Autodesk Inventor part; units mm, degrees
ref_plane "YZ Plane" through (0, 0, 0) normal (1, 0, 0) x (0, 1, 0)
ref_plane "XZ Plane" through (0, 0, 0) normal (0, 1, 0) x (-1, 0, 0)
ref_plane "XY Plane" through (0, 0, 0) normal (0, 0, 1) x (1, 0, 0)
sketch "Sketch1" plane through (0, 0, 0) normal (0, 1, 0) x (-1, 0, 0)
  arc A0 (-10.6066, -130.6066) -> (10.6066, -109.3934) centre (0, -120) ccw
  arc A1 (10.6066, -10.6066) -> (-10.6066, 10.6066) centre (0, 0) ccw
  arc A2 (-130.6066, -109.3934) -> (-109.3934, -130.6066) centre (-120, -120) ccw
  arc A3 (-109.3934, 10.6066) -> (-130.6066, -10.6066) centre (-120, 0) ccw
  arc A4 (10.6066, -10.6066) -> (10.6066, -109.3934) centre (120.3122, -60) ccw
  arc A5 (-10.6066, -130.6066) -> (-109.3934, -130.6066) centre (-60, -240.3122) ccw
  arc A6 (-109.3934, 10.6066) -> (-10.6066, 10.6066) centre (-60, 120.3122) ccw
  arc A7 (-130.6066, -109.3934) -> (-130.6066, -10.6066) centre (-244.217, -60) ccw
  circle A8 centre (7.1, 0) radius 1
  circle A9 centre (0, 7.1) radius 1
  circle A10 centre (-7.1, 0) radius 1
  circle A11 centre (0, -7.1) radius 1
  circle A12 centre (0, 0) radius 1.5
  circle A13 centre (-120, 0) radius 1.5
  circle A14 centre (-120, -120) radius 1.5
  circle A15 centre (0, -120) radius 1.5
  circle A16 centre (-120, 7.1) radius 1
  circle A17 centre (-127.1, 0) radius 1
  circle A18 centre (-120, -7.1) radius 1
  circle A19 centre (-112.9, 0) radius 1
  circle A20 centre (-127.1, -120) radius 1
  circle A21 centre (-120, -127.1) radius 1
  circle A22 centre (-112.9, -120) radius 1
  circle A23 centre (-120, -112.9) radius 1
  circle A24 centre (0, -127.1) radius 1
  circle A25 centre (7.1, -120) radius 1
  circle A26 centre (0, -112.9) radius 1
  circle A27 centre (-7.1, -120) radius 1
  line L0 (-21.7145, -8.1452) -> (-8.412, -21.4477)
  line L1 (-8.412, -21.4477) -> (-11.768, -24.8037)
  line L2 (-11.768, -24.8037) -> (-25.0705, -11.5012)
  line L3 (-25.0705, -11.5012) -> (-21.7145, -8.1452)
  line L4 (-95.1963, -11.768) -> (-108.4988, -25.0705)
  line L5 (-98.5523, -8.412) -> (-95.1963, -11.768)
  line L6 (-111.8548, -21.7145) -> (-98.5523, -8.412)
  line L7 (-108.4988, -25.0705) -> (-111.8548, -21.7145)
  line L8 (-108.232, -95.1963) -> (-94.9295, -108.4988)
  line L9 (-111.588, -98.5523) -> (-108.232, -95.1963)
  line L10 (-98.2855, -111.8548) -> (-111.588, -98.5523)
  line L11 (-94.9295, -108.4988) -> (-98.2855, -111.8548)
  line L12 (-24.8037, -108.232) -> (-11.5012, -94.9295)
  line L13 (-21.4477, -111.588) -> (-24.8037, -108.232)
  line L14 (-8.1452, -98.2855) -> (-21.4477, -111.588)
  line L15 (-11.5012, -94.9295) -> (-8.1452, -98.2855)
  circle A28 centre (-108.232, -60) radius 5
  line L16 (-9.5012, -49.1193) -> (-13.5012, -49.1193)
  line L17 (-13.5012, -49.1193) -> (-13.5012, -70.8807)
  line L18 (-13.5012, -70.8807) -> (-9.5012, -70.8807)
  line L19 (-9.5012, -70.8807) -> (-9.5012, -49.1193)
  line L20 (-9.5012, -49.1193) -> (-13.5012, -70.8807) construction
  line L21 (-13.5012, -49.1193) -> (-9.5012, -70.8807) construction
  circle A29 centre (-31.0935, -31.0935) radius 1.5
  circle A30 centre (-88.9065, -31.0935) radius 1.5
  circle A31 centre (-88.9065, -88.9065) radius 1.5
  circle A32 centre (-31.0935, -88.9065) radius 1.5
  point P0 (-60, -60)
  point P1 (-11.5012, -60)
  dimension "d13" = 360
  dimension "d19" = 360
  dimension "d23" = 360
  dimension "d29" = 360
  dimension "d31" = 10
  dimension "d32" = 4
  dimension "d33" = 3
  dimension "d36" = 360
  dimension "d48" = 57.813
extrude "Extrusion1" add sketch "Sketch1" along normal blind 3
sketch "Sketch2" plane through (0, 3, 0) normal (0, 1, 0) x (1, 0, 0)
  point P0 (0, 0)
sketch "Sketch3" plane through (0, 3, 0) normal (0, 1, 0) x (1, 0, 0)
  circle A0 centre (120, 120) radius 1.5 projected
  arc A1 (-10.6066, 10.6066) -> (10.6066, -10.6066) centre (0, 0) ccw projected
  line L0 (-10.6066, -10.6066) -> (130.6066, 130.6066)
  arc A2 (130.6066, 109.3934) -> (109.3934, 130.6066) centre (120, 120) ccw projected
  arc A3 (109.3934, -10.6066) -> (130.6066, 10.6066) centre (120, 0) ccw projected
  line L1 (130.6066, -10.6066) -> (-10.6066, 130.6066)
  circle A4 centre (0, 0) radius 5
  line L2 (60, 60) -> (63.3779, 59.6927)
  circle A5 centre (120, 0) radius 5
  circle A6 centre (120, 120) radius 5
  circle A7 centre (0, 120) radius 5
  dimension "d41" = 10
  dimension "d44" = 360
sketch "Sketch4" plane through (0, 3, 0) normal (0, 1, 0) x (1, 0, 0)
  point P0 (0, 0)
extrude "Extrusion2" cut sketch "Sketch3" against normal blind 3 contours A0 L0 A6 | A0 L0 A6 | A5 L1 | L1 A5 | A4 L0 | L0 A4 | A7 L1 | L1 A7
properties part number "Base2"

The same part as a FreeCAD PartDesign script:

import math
import FreeCAD as App
import Part
import Sketcher

V = App.Vector
Q = App.Units.Quantity


def add_polygon(sketch, points):
    """Adds a closed chain of lines whose ends are joined by coincident constraints."""
    first, n = sketch.GeometryCount, len(points)
    for a, b in zip(points, points[1:] + points[:1]):
        sketch.addGeometry(Part.LineSegment(App.Vector(*a, 0), App.Vector(*b, 0)), False)
    for i in range(n):
        sketch.addConstraint(Sketcher.Constraint("Coincident", first + i, 2, first + (i + 1) % n, 1))

doc = App.newDocument("Part")
params = doc.addObject("Spreadsheet::Sheet", "Params")
for row, (alias, value) in enumerate([
    ("sketch1_diameter", "3 mm"),
    ("sketch1_diameter2", "10 mm"),
    ("sketch1_width", "4 mm"),
    ("sketch1_diameter3", "2 mm"),
    ("sketch1_radius", "15 mm"),
    ("pad1_length", "3 mm"),
    ("sketch2_diameter", "10 mm"),
    ("sketch2_diameter2", "3 mm"),
    ("pocket1_length", "3 mm"),
], start=1):
    params.set(f"A{row}", alias)
    params.set(f"B{row}", "=" + value)
    params.setAlias(f"B{row}", alias)

body = doc.addObject("PartDesign::Body", "Body")

sketch1 = body.newObject("Sketcher::SketchObject", "Sketch")
sketch1.AttachmentSupport = (doc.getObject("XZ_Plane"), [""])
sketch1.MapMode = "FlatFace"
sketch1.addGeometry(Part.ArcOfCircle(Part.Circle(V(60, -240.3, 0), V(0, 0, 1), 120.3), math.radians(66), math.radians(114)), False)
sketch1.addGeometry(Part.ArcOfCircle(Part.Circle(V(0, -120, 0), V(0, 0, 1), 15), math.radians(135), math.radians(315)), False)
sketch1.addGeometry(Part.ArcOfCircle(Part.Circle(V(-120.3, -60, 0), V(0, 0, 1), 120.3), math.radians(-24), math.radians(24)), False)
sketch1.addGeometry(Part.ArcOfCircle(Part.Circle(V(0, 0, 0), V(0, 0, 1), 15), math.radians(45), math.radians(225)), False)
sketch1.addGeometry(Part.ArcOfCircle(Part.Circle(V(60, 120.3, 0), V(0, 0, 1), 120.3), math.radians(-114), math.radians(-66)), False)
sketch1.addGeometry(Part.ArcOfCircle(Part.Circle(V(120, 0, 0), V(0, 0, 1), 15), math.radians(-45), math.radians(135)), False)
sketch1.addGeometry(Part.ArcOfCircle(Part.Circle(V(244.2, -60, 0), V(0, 0, 1), 123.9), math.radians(157), math.radians(203)), False)
sketch1.addGeometry(Part.ArcOfCircle(Part.Circle(V(120, -120, 0), V(0, 0, 1), 15), math.radians(-135), math.radians(45)), False)
sketch1.addGeometry(Part.Circle(V(120, -127.1, 0), V(0, 0, 1), 1), False)
sketch1.addGeometry(Part.Circle(V(127.1, -120, 0), V(0, 0, 1), 1), False)
sketch1.addGeometry(Part.Circle(V(120, -120, 0), V(0, 0, 1), 1.5), False)
sketch1.addGeometry(Part.Circle(V(112.9, -120, 0), V(0, 0, 1), 1), False)
sketch1.addGeometry(Part.Circle(V(120, -112.9, 0), V(0, 0, 1), 1), False)
add_polygon(sketch1, [(111.6, -98.6), (108.2, -95.2), (94.9, -108.5), (98.3, -111.9)])
sketch1.addGeometry(Part.Circle(V(88.9, -88.9, 0), V(0, 0, 1), 1.5), False)
sketch1.addGeometry(Part.Circle(V(7.1, -120, 0), V(0, 0, 1), 1), False)
sketch1.addGeometry(Part.Circle(V(0, -127.1, 0), V(0, 0, 1), 1), False)
sketch1.addGeometry(Part.Circle(V(0, -120, 0), V(0, 0, 1), 1.5), False)
sketch1.addGeometry(Part.Circle(V(-7.1, -120, 0), V(0, 0, 1), 1), False)
add_polygon(sketch1, [(21.4, -111.6), (24.8, -108.2), (11.5, -94.9), (8.1, -98.3)])
sketch1.addGeometry(Part.Circle(V(0, -112.9, 0), V(0, 0, 1), 1), False)
sketch1.addGeometry(Part.Circle(V(31.1, -88.9, 0), V(0, 0, 1), 1.5), False)
sketch1.addGeometry(Part.Circle(V(108.2, -60, 0), V(0, 0, 1), 5), False)
sketch1.addGeometry(Part.Circle(V(88.9, -31.1, 0), V(0, 0, 1), 1.5), False)
sketch1.addGeometry(Part.Circle(V(120, -7.1, 0), V(0, 0, 1), 1), False)
add_polygon(sketch1, [(98.6, -8.4), (95.2, -11.8), (108.5, -25.1), (111.9, -21.7)])
sketch1.addGeometry(Part.Circle(V(127.1, 0, 0), V(0, 0, 1), 1), False)
sketch1.addGeometry(Part.Circle(V(120, 0, 0), V(0, 0, 1), 1.5), False)
sketch1.addGeometry(Part.Circle(V(120, 7.1, 0), V(0, 0, 1), 1), False)
sketch1.addGeometry(Part.Circle(V(112.9, 0, 0), V(0, 0, 1), 1), False)
sketch1.addGeometry(Part.Circle(V(31.1, -31.1, 0), V(0, 0, 1), 1.5), False)
add_polygon(sketch1, [(13.5, -49.1), (9.5, -49.1), (9.5, -70.9), (13.5, -70.9)])
add_polygon(sketch1, [(25.1, -11.5), (21.7, -8.1), (8.4, -21.4), (11.8, -24.8)])
sketch1.addGeometry(Part.Circle(V(0, -7.1, 0), V(0, 0, 1), 1), False)
sketch1.addGeometry(Part.Circle(V(7.1, 0, 0), V(0, 0, 1), 1), False)
sketch1.addGeometry(Part.Circle(V(0, 0, 0), V(0, 0, 1), 1.5), False)
sketch1.addGeometry(Part.Circle(V(-7.1, 0, 0), V(0, 0, 1), 1), False)
sketch1.addGeometry(Part.Circle(V(0, 7.1, 0), V(0, 0, 1), 1), False)
sketch1.addConstraint([
    Sketcher.Constraint("Coincident", 0, 2, 1, 2),
    Sketcher.Constraint("Coincident", 1, 1, 2, 1),
    Sketcher.Constraint("Coincident", 2, 2, 3, 2),
    Sketcher.Constraint("Coincident", 3, 1, 4, 1),
    Sketcher.Constraint("Coincident", 4, 2, 5, 2),
    Sketcher.Constraint("Coincident", 5, 1, 6, 1),
    Sketcher.Constraint("Coincident", 6, 2, 7, 2),
    Sketcher.Constraint("Coincident", 7, 1, 0, 1),
    Sketcher.Constraint("Horizontal", 40),
    Sketcher.Constraint("Vertical", 41),
    Sketcher.Constraint("Horizontal", 42),
    Sketcher.Constraint("Vertical", 43),
    Sketcher.Constraint("Coincident", 3, 3, -1, 1),
    Sketcher.Constraint("Coincident", 50, 3, -1, 1),
    Sketcher.Constraint("Coincident", 10, 3, 7, 3),
    Sketcher.Constraint("Coincident", 20, 3, 1, 3),
    Sketcher.Constraint("Coincident", 36, 3, 5, 3),
    Sketcher.Constraint("Equal", 0, 2),
    Sketcher.Constraint("Equal", 1, 3),
    Sketcher.Constraint("Equal", 2, 4),
    Sketcher.Constraint("Equal", 3, 5),
    Sketcher.Constraint("Equal", 5, 7),
    Sketcher.Constraint("Equal", 8, 9),
    Sketcher.Constraint("Equal", 9, 11),
    Sketcher.Constraint("Equal", 11, 12),
    Sketcher.Constraint("Equal", 10, 17),
    Sketcher.Constraint("Equal", 12, 18),
    Sketcher.Constraint("Equal", 18, 19),
    Sketcher.Constraint("Equal", 17, 20),
    Sketcher.Constraint("Equal", 19, 21),
    Sketcher.Constraint("Equal", 21, 26),
    Sketcher.Constraint("Equal", 20, 27),
    Sketcher.Constraint("Equal", 27, 29),
    Sketcher.Constraint("Equal", 26, 30),
    Sketcher.Constraint("Equal", 30, 35),
    Sketcher.Constraint("Equal", 29, 36),
    Sketcher.Constraint("Equal", 35, 37),
    Sketcher.Constraint("Equal", 37, 38),
    Sketcher.Constraint("Equal", 36, 39),
    Sketcher.Constraint("Equal", 38, 48),
    Sketcher.Constraint("Equal", 48, 49),
    Sketcher.Constraint("Equal", 39, 50),
    Sketcher.Constraint("Equal", 49, 51),
    Sketcher.Constraint("Equal", 51, 52),
    Sketcher.Constraint("Symmetric", 49, 3, 51, 3, -1, 1),
    Sketcher.Constraint("Symmetric", 48, 3, 52, 3, -1, 1),
    Sketcher.Constraint("Symmetric", 18, 3, 21, 3, -2),
    Sketcher.Constraint("Symmetric", 30, 3, 37, 3, -1),
    Sketcher.Constraint("PointOnObject", 1, 3, -2),
    Sketcher.Constraint("PointOnObject", 5, 3, -1),
    Sketcher.Constraint("PointOnObject", 19, 3, -2),
    Sketcher.Constraint("PointOnObject", 26, 3, -2),
    Sketcher.Constraint("PointOnObject", 35, 3, -1),
    Sketcher.Constraint("PointOnObject", 38, 3, -1),
    Sketcher.Constraint("PointOnObject", 48, 3, -2),
    Sketcher.Constraint("PointOnObject", 49, 3, -1),
    Sketcher.Constraint("Perpendicular", 13, 14),
    Sketcher.Constraint("Perpendicular", 14, 15),
    Sketcher.Constraint("Perpendicular", 15, 16),
    Sketcher.Constraint("Parallel", 16, 22),
    Sketcher.Constraint("Perpendicular", 22, 23),
    Sketcher.Constraint("Perpendicular", 23, 24),
    Sketcher.Constraint("Perpendicular", 24, 25),
    Sketcher.Constraint("Perpendicular", 25, 31),
    Sketcher.Constraint("Perpendicular", 31, 32),
    Sketcher.Constraint("Perpendicular", 32, 33),
    Sketcher.Constraint("Perpendicular", 33, 34),
    Sketcher.Constraint("Parallel", 34, 44),
    Sketcher.Constraint("Perpendicular", 44, 45),
    Sketcher.Constraint("Perpendicular", 45, 46),
    Sketcher.Constraint("Perpendicular", 46, 47),
    Sketcher.Constraint("Horizontal", 2, 3, 6, 3),
    Sketcher.Constraint("Horizontal", 1, 3, 7, 3),
    Sketcher.Constraint("Horizontal", 7, 3, 9, 3),
    Sketcher.Constraint("Horizontal", 10, 3, 11, 3),
    Sketcher.Constraint("Horizontal", 11, 3, 18, 3),
    Sketcher.Constraint("Horizontal", 8, 3, 19, 3),
    Sketcher.Constraint("Horizontal", 12, 3, 26, 3),
    Sketcher.Constraint("Horizontal", 17, 3, 27, 3),
    Sketcher.Constraint("Horizontal", 6, 3, 28, 3),
    Sketcher.Constraint("Horizontal", 29, 3, 39, 3),
    Sketcher.Constraint("Horizontal", 30, 3, 48, 3),
    Sketcher.Constraint("Horizontal", 3, 1, 4, 2),
    Sketcher.Constraint("Horizontal", 2, 2, 5, 1),
    Sketcher.Constraint("Horizontal", 1, 1, 6, 2),
    Sketcher.Constraint("Horizontal", 0, 2, 7, 1),
    Sketcher.Constraint("Vertical", 0, 3, 4, 3),
    Sketcher.Constraint("Vertical", 7, 3, 8, 3),
    Sketcher.Constraint("Vertical", 10, 3, 12, 3),
    Sketcher.Constraint("Vertical", 17, 3, 29, 3),
    Sketcher.Constraint("Vertical", 12, 3, 30, 3),
    Sketcher.Constraint("Vertical", 9, 3, 35, 3),
    Sketcher.Constraint("Vertical", 11, 3, 38, 3),
    Sketcher.Constraint("Vertical", 27, 3, 39, 3),
    Sketcher.Constraint("Vertical", 18, 3, 49, 3),
    Sketcher.Constraint("Vertical", 0, 2, 3, 1),
    Sketcher.Constraint("Vertical", 28, 3, 13, 2),
    Sketcher.Constraint("Equal", 15, 22),
    Sketcher.Constraint("Equal", 16, 23),
    Sketcher.Constraint("Equal", 24, 31),
    Sketcher.Constraint("Equal", 25, 32),
    Sketcher.Constraint("Equal", 33, 44),
    Sketcher.Constraint("Equal", 34, 45),
    Sketcher.Constraint("Diameter", 10, 3.0),
    Sketcher.Constraint("Diameter", 28, 10.0),
    Sketcher.Constraint("DistanceX", 40, 2, 40, 1, 4.0),
    Sketcher.Constraint("Diameter", 8, 2.0),
    Sketcher.Constraint("Radius", 1, 15.0),
    Sketcher.Constraint("Angle", 13, Q("135 deg")),
    Sketcher.Constraint("DistanceX", -1, 1, 0, 3, 60.0),
    Sketcher.Constraint("DistanceY", 1, 3, -1, 1, 120.0),
    Sketcher.Constraint("DistanceY", 8, 3, -1, 1, 127.1),
    Sketcher.Constraint("DistanceX", -1, 1, 9, 3, 127.1),
    Sketcher.Constraint("DistanceX", -1, 1, 11, 3, 112.9),
    Sketcher.Constraint("DistanceY", 12, 3, -1, 1, 112.9),
    Sketcher.Constraint("DistanceX", -1, 1, 18, 3, 7.1),
    Sketcher.Constraint("DistanceY", 30, 3, -1, 1, 7.1),
    Sketcher.Constraint("Radius", 0, 120.3122),
    Sketcher.Constraint("Radius", 6, 123.8831),
    Sketcher.Constraint("Distance", 13, 4.746),
    Sketcher.Constraint("DistanceY", 41, 2, 41, 1, 21.7614),
    Sketcher.Constraint("DistanceX", -1, 1, 6, 3, 244.217),
    Sketcher.Constraint("DistanceX", -1, 1, 28, 3, 108.232),
    Sketcher.Constraint("DistanceY", 22, 2, -1, 1, 108.232),
    Sketcher.Constraint("DistanceY", 31, 2, -1, 1, 11.768),
    Sketcher.Constraint("DistanceX", -1, 1, 45, 2, 8.412),
    Sketcher.Constraint("Distance", 14, 18.8126),
    Sketcher.Constraint("DistanceY", 0, 3, -1, 1, 240.3122),
    Sketcher.Constraint("DistanceX", -1, 1, 17, 3, 88.9065),
    Sketcher.Constraint("DistanceY", 17, 3, -1, 1, 88.9065),
    Sketcher.Constraint("DistanceX", -1, 1, 27, 3, 31.0935),
    Sketcher.Constraint("DistanceY", 29, 3, -1, 1, 31.0935),
    Sketcher.Constraint("DistanceY", 13, 2, -1, 1, 95.1963),
    Sketcher.Constraint("DistanceX", -1, 1, 22, 2, 24.8037),
    Sketcher.Constraint("DistanceX", -1, 1, 31, 2, 95.1963),
    Sketcher.Constraint("DistanceX", -1, 1, 40, 2, 9.5012),
    Sketcher.Constraint("DistanceY", 40, 2, -1, 1, 49.1193),
    Sketcher.Constraint("DistanceY", 44, 2, -1, 1, 8.1452),
])
sketch1.setExpression("Constraints[123]", "Params.sketch1_diameter")
sketch1.setExpression("Constraints[124]", "Params.sketch1_diameter2")
sketch1.setExpression("Constraints[125]", "Params.sketch1_width")
sketch1.setExpression("Constraints[126]", "Params.sketch1_diameter3")
sketch1.setExpression("Constraints[127]", "Params.sketch1_radius")
pad1 = body.newObject("PartDesign::Pad", "Pad")
pad1.Profile = sketch1
pad1.setExpression("Length", "Params.pad1_length")
pad1.Reversed = True

sketch2 = body.newObject("Sketcher::SketchObject", "Sketch001")
sketch2.AttachmentSupport = (doc.getObject("XZ_Plane"), [""])
sketch2.MapMode = "FlatFace"
sketch2.AttachmentOffset = App.Placement(V(0, 0, -3), App.Rotation())
sketch2.addGeometry([
    Part.Circle(V(120, -120, 0), V(0, 0, 1), 5),
    Part.Circle(V(120, -120, 0), V(0, 0, 1), 1.5),
    Part.Circle(V(120, 0, 0), V(0, 0, 1), 5),
    Part.Circle(V(0, 0, 0), V(0, 0, 1), 5),
    Part.Circle(V(0, -120, 0), V(0, 0, 1), 5),
], False)
sketch2.addConstraint([
    Sketcher.Constraint("Coincident", 3, 3, -1, 1),
    Sketcher.Constraint("Coincident", 1, 3, 0, 3),
    Sketcher.Constraint("Equal", 0, 2),
    Sketcher.Constraint("Equal", 2, 3),
    Sketcher.Constraint("Equal", 3, 4),
    Sketcher.Constraint("PointOnObject", 2, 3, -1),
    Sketcher.Constraint("PointOnObject", 4, 3, -2),
    Sketcher.Constraint("Horizontal", 1, 3, 4, 3),
    Sketcher.Constraint("Vertical", 1, 3, 2, 3),
    Sketcher.Constraint("Diameter", 0, 10.0),
    Sketcher.Constraint("Diameter", 1, 3.0),
    Sketcher.Constraint("DistanceX", -1, 1, 0, 3, 120.0),
    Sketcher.Constraint("DistanceY", 0, 3, -1, 1, 120.0),
])
sketch2.setExpression("Constraints[9]", "Params.sketch2_diameter")
sketch2.setExpression("Constraints[10]", "Params.sketch2_diameter2")
pocket1 = body.newObject("PartDesign::Pocket", "Pocket")
pocket1.Profile = sketch2
pocket1.setExpression("Length", "Params.pocket1_length")
pocket1.Reversed = True

doc.recompute()
